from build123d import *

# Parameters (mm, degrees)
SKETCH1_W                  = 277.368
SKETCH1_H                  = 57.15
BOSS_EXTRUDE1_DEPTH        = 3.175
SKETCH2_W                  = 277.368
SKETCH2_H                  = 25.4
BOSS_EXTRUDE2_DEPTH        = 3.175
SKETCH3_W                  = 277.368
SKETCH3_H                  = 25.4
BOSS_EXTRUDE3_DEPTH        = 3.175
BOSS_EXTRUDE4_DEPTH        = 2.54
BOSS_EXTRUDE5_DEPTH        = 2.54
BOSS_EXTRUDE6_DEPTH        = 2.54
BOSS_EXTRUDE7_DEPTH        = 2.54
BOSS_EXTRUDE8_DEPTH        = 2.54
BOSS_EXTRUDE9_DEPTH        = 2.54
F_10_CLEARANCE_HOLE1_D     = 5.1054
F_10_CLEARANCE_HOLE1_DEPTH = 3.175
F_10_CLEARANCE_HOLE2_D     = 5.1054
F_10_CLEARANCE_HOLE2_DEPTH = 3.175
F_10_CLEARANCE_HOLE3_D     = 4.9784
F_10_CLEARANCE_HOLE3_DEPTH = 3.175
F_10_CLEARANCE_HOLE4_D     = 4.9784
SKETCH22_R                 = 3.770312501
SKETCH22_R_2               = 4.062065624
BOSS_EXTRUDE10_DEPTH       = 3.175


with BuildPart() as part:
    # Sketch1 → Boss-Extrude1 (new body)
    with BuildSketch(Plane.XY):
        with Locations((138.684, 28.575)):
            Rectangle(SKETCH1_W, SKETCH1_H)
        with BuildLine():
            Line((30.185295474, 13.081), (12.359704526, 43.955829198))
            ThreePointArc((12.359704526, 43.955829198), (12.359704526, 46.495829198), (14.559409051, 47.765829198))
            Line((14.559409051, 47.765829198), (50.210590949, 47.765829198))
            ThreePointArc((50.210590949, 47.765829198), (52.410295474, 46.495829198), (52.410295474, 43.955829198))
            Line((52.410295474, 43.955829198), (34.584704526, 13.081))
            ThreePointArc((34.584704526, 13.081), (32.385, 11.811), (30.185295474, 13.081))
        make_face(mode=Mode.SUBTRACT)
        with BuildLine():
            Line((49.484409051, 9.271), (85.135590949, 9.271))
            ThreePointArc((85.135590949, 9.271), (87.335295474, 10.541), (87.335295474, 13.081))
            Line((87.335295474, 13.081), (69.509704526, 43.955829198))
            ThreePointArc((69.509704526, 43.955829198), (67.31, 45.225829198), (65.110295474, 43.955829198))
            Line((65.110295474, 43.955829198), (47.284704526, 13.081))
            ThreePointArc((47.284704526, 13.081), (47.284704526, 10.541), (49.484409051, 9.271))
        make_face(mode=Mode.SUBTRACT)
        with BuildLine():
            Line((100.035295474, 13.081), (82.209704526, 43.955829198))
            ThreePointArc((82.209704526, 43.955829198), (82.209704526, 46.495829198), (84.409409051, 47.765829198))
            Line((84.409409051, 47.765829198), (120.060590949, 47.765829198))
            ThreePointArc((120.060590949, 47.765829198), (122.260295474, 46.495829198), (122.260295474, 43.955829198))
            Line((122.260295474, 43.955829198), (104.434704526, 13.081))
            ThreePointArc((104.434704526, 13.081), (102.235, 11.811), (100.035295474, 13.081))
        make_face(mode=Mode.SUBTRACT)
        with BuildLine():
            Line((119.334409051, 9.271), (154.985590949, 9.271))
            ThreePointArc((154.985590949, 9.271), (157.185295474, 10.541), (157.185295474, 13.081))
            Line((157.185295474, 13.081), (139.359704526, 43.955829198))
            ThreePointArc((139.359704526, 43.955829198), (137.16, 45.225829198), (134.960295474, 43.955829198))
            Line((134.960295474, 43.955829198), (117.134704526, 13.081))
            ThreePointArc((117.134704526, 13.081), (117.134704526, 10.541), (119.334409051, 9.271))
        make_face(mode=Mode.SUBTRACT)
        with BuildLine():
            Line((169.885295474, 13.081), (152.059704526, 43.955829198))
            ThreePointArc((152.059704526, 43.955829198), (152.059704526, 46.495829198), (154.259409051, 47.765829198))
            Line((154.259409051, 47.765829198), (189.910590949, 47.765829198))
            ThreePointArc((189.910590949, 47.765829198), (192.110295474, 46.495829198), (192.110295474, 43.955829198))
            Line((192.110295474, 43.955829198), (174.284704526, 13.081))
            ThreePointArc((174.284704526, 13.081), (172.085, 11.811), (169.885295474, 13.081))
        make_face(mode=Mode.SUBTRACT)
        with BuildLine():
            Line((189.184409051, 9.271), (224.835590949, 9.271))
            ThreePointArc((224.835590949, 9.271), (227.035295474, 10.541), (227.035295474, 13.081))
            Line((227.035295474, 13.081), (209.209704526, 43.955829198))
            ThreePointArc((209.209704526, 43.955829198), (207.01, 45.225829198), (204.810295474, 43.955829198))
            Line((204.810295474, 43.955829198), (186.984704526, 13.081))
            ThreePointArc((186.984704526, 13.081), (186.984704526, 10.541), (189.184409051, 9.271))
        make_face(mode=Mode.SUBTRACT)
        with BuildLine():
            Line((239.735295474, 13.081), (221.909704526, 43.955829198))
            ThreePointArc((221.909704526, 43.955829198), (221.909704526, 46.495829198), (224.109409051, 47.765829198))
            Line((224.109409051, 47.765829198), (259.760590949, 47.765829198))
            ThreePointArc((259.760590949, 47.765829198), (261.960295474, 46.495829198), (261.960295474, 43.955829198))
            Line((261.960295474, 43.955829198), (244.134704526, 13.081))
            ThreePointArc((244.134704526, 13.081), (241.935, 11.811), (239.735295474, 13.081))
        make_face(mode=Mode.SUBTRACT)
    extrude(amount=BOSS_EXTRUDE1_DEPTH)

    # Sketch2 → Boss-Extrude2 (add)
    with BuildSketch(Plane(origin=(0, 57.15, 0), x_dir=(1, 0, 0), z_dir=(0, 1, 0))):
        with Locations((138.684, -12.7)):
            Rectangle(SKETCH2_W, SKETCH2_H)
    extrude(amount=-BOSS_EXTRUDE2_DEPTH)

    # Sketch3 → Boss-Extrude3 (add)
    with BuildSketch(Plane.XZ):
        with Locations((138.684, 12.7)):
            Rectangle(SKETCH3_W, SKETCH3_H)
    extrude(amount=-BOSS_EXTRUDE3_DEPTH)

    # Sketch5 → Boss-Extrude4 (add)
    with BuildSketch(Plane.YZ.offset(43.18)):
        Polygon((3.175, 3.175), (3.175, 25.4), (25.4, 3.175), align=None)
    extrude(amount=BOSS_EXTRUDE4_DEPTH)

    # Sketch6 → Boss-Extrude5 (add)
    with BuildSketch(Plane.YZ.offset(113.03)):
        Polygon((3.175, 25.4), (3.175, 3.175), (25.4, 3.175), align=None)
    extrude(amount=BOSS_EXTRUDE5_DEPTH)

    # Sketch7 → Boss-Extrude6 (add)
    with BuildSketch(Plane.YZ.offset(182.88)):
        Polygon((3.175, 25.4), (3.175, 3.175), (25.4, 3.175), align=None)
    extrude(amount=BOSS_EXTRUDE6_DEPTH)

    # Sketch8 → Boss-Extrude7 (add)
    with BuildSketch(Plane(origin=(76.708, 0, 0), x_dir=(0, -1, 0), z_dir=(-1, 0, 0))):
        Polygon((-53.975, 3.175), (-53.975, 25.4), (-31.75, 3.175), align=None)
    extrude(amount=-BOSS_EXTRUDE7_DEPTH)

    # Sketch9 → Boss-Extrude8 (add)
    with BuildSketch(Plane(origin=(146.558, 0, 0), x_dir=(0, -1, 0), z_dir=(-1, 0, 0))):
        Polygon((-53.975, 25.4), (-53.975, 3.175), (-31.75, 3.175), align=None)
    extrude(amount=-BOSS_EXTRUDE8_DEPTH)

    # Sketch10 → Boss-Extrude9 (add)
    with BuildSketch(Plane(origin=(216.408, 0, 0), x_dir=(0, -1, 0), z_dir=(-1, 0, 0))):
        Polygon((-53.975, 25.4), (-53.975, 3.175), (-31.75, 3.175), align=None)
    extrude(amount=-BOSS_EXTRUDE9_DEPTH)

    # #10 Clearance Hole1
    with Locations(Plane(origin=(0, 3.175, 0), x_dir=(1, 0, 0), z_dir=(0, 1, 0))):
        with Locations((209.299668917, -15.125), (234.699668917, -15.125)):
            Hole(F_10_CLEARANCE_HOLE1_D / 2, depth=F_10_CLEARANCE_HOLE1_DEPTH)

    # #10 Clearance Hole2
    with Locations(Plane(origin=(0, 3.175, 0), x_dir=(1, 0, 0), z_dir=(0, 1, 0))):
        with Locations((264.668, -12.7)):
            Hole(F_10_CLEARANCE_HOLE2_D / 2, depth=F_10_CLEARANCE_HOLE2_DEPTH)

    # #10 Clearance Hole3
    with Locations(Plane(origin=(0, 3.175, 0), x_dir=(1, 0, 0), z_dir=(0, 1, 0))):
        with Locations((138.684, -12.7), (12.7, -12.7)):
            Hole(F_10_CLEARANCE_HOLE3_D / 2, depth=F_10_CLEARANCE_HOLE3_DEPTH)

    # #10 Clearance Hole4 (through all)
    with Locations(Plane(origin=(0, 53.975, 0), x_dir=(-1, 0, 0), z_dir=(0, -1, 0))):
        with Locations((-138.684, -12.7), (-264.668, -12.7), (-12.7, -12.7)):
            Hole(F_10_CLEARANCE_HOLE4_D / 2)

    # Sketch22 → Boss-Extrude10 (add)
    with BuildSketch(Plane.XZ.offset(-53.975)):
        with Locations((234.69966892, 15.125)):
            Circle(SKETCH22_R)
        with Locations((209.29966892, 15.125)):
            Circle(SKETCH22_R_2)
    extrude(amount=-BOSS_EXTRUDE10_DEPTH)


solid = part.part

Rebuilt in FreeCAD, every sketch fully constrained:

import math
import FreeCAD as App
import Part
import Sketcher

V = App.Vector
Q = App.Units.Quantity

doc = App.newDocument("Part")
params = doc.addObject("Spreadsheet::Sheet", "Params")
for row, (alias, value) in enumerate([
    ("sketch1_radius", "0.1 in"),
    ("sketch1_width", "10.92 in"),
    ("sketch1_height", "2.25 in"),
    ("pad1_length", "0.125 in"),
    ("sketch2_height", "1 in"),
    ("sketch2_width", "10.92 in"),
    ("pad2_length", "0.125 in"),
    ("sketch3_height", "1 in"),
    ("sketch3_width", "10.92 in"),
    ("pad3_length", "0.125 in"),
    ("sketch4_width", "0.875 in"),
    ("pad4_length", "0.1 in"),
    ("sketch5_width", "0.875 in"),
    ("pad5_length", "0.1 in"),
    ("sketch6_width", "0.875 in"),
    ("pad6_length", "0.1 in"),
    ("sketch7_width", "0.875 in"),
    ("pad7_length", "0.1 in"),
    ("sketch8_width", "0.875 in"),
    ("pad8_length", "0.1 in"),
    ("sketch9_width", "0.875 in"),
    ("pad9_length", "0.1 in"),
    ("sketch10_diameter", "0.201 in"),
    ("hole_diameter", "0.201 in"),
    ("hole_depth", "0.125 in"),
    ("sketch11_diameter", "0.201 in"),
    ("hole2_diameter", "0.201 in"),
    ("hole2_depth", "0.125 in"),
    ("sketch12_diameter", "0.196 in"),
    ("hole3_diameter", "0.196 in"),
    ("hole3_depth", "0.125 in"),
    ("sketch13_diameter", "0.196 in"),
    ("hole4_diameter", "0.196 in"),
    ("sketch14_diameter", "0.296875 in"),
    ("pad10_length", "0.125 in"),
], start=1):
    params.set(f"A{row}", alias)
    params.set(f"B{row}", "=" + value)
    params.setAlias(f"B{row}", alias)

body = doc.addObject("PartDesign::Body", "Body")

# Sketch on XY plane
sketch1 = body.newObject("Sketcher::SketchObject", "Sketch")
sketch1.AttachmentSupport = (doc.getObject("XY_Plane"), [""])
sketch1.MapMode = "FlatFace"
sketch1.addGeometry([
    Part.LineSegment(V(0, 57.15, 0), V(0, 0, 0)),  # 0
    Part.LineSegment(V(0, 0, 0), V(277.368, 0, 0)),  # 1
    Part.LineSegment(V(277.368, 0, 0), V(277.368, 57.15, 0)),  # 2
    Part.LineSegment(V(277.368, 57.15, 0), V(0, 57.15, 0)),  # 3
    Part.LineSegment(V(85.135591, 9.271, 0), V(49.484409, 9.271, 0)),  # 4
    Part.ArcOfCircle(Part.Circle(V(49.484409, 11.811, 0), V(0, 0, 1), 2.54), math.radians(150), math.radians(270)),  # 5
    Part.LineSegment(V(47.284705, 13.081, 0), V(65.110295, 43.955829, 0)),  # 6
    Part.ArcOfCircle(Part.Circle(V(67.31, 42.685829, 0), V(0, 0, 1), 2.54), math.radians(30), math.radians(150)),  # 7
    Part.LineSegment(V(69.509705, 43.955829, 0), V(87.335295, 13.081, 0)),  # 8
    Part.ArcOfCircle(Part.Circle(V(85.135591, 11.811, 0), V(0, 0, 1), 2.54), math.radians(-90), math.radians(30)),  # 9
    Part.LineSegment(V(154.985591, 9.271, 0), V(119.334409, 9.271, 0)),  # 10
    Part.ArcOfCircle(Part.Circle(V(119.334409, 11.811, 0), V(0, 0, 1), 2.54), math.radians(150), math.radians(270)),  # 11
    Part.LineSegment(V(117.134705, 13.081, 0), V(134.960295, 43.955829, 0)),  # 12
    Part.ArcOfCircle(Part.Circle(V(137.16, 42.685829, 0), V(0, 0, 1), 2.54), math.radians(30), math.radians(150)),  # 13
    Part.LineSegment(V(139.359705, 43.955829, 0), V(157.185295, 13.081, 0)),  # 14
    Part.ArcOfCircle(Part.Circle(V(154.985591, 11.811, 0), V(0, 0, 1), 2.54), math.radians(-90), math.radians(30)),  # 15
    Part.LineSegment(V(224.835591, 9.271, 0), V(189.184409, 9.271, 0)),  # 16
    Part.ArcOfCircle(Part.Circle(V(189.184409, 11.811, 0), V(0, 0, 1), 2.54), math.radians(150), math.radians(270)),  # 17
    Part.LineSegment(V(186.984705, 13.081, 0), V(204.810295, 43.955829, 0)),  # 18
    Part.ArcOfCircle(Part.Circle(V(207.01, 42.685829, 0), V(0, 0, 1), 2.54), math.radians(30), math.radians(150)),  # 19
    Part.LineSegment(V(209.209705, 43.955829, 0), V(227.035295, 13.081, 0)),  # 20
    Part.ArcOfCircle(Part.Circle(V(224.835591, 11.811, 0), V(0, 0, 1), 2.54), math.radians(-90), math.radians(30)),  # 21
    Part.ArcOfCircle(Part.Circle(V(32.385, 14.351, 0), V(0, 0, 1), 2.54), math.radians(-150), math.radians(-30)),  # 22
    Part.LineSegment(V(30.185295, 13.081, 0), V(12.359705, 43.955829, 0)),  # 23
    Part.ArcOfCircle(Part.Circle(V(14.559409, 45.225829, 0), V(0, 0, 1), 2.54), math.radians(90), math.radians(210)),  # 24
    Part.LineSegment(V(14.559409, 47.765829, 0), V(50.210591, 47.765829, 0)),  # 25
    Part.ArcOfCircle(Part.Circle(V(50.210591, 45.225829, 0), V(0, 0, 1), 2.54), math.radians(-30), math.radians(90)),  # 26
    Part.LineSegment(V(52.410295, 43.955829, 0), V(34.584705, 13.081, 0)),  # 27
    Part.ArcOfCircle(Part.Circle(V(102.235, 14.351, 0), V(0, 0, 1), 2.54), math.radians(-150), math.radians(-30)),  # 28
    Part.LineSegment(V(100.035295, 13.081, 0), V(82.209705, 43.955829, 0)),  # 29
    Part.ArcOfCircle(Part.Circle(V(84.409409, 45.225829, 0), V(0, 0, 1), 2.54), math.radians(90), math.radians(210)),  # 30
    Part.LineSegment(V(84.409409, 47.765829, 0), V(120.060591, 47.765829, 0)),  # 31
    Part.ArcOfCircle(Part.Circle(V(120.060591, 45.225829, 0), V(0, 0, 1), 2.54), math.radians(-30), math.radians(90)),  # 32
    Part.LineSegment(V(122.260295, 43.955829, 0), V(104.434705, 13.081, 0)),  # 33
    Part.ArcOfCircle(Part.Circle(V(172.085, 14.351, 0), V(0, 0, 1), 2.54), math.radians(-150), math.radians(-30)),  # 34
    Part.LineSegment(V(169.885295, 13.081, 0), V(152.059705, 43.955829, 0)),  # 35
    Part.ArcOfCircle(Part.Circle(V(154.259409, 45.225829, 0), V(0, 0, 1), 2.54), math.radians(90), math.radians(210)),  # 36
    Part.LineSegment(V(154.259409, 47.765829, 0), V(189.910591, 47.765829, 0)),  # 37
    Part.ArcOfCircle(Part.Circle(V(189.910591, 45.225829, 0), V(0, 0, 1), 2.54), math.radians(-30), math.radians(90)),  # 38
    Part.LineSegment(V(192.110295, 43.955829, 0), V(174.284705, 13.081, 0)),  # 39
    Part.ArcOfCircle(Part.Circle(V(241.935, 14.351, 0), V(0, 0, 1), 2.54), math.radians(-150), math.radians(-30)),  # 40
    Part.LineSegment(V(239.735295, 13.081, 0), V(221.909705, 43.955829, 0)),  # 41
    Part.ArcOfCircle(Part.Circle(V(224.109409, 45.225829, 0), V(0, 0, 1), 2.54), math.radians(90), math.radians(210)),  # 42
    Part.LineSegment(V(224.109409, 47.765829, 0), V(259.760591, 47.765829, 0)),  # 43
    Part.ArcOfCircle(Part.Circle(V(259.760591, 45.225829, 0), V(0, 0, 1), 2.54), math.radians(-30), math.radians(90)),  # 44
    Part.LineSegment(V(261.960295, 43.955829, 0), V(244.134705, 13.081, 0)),  # 45
], False)
sketch1.addConstraint([
    Sketcher.Constraint("Coincident", 0, 2, 1, 1),
    Sketcher.Constraint("Coincident", 1, 2, 2, 1),
    Sketcher.Constraint("Coincident", 2, 2, 3, 1),
    Sketcher.Constraint("Coincident", 3, 2, 0, 1),
    Sketcher.Constraint("Tangent", 4, 2, 5, 2),
    Sketcher.Constraint("Tangent", 5, 1, 6, 1),
    Sketcher.Constraint("Tangent", 6, 2, 7, 2),
    Sketcher.Constraint("Tangent", 7, 1, 8, 1),
    Sketcher.Constraint("Tangent", 8, 2, 9, 2),
    Sketcher.Constraint("Tangent", 9, 1, 4, 1),
    Sketcher.Constraint("Tangent", 10, 2, 11, 2),
    Sketcher.Constraint("Tangent", 11, 1, 12, 1),
    Sketcher.Constraint("Tangent", 12, 2, 13, 2),
    Sketcher.Constraint("Tangent", 13, 1, 14, 1),
    Sketcher.Constraint("Tangent", 14, 2, 15, 2),
    Sketcher.Constraint("Tangent", 15, 1, 10, 1),
    Sketcher.Constraint("Tangent", 16, 2, 17, 2),
    Sketcher.Constraint("Tangent", 17, 1, 18, 1),
    Sketcher.Constraint("Tangent", 18, 2, 19, 2),
    Sketcher.Constraint("Tangent", 19, 1, 20, 1),
    Sketcher.Constraint("Tangent", 20, 2, 21, 2),
    Sketcher.Constraint("Tangent", 21, 1, 16, 1),
    Sketcher.Constraint("Tangent", 22, 1, 23, 1),
    Sketcher.Constraint("Tangent", 23, 2, 24, 2),
    Sketcher.Constraint("Tangent", 24, 1, 25, 1),
    Sketcher.Constraint("Tangent", 25, 2, 26, 2),
    Sketcher.Constraint("Tangent", 26, 1, 27, 1),
    Sketcher.Constraint("Tangent", 27, 2, 22, 2),
    Sketcher.Constraint("Tangent", 28, 1, 29, 1),
    Sketcher.Constraint("Tangent", 29, 2, 30, 2),
    Sketcher.Constraint("Tangent", 30, 1, 31, 1),
    Sketcher.Constraint("Tangent", 31, 2, 32, 2),
    Sketcher.Constraint("Tangent", 32, 1, 33, 1),
    Sketcher.Constraint("Tangent", 33, 2, 28, 2),
    Sketcher.Constraint("Tangent", 34, 1, 35, 1),
    Sketcher.Constraint("Tangent", 35, 2, 36, 2),
    Sketcher.Constraint("Tangent", 36, 1, 37, 1),
    Sketcher.Constraint("Tangent", 37, 2, 38, 2),
    Sketcher.Constraint("Tangent", 38, 1, 39, 1),
    Sketcher.Constraint("Tangent", 39, 2, 34, 2),
    Sketcher.Constraint("Tangent", 40, 1, 41, 1),
    Sketcher.Constraint("Tangent", 41, 2, 42, 2),
    Sketcher.Constraint("Tangent", 42, 1, 43, 1),
    Sketcher.Constraint("Tangent", 43, 2, 44, 2),
    Sketcher.Constraint("Tangent", 44, 1, 45, 1),
    Sketcher.Constraint("Tangent", 45, 2, 40, 2),
    Sketcher.Constraint("Vertical", 0),
    Sketcher.Constraint("Horizontal", 1),
    Sketcher.Constraint("Vertical", 2),
    Sketcher.Constraint("Horizontal", 3),
    Sketcher.Constraint("Horizontal", 4),
    Sketcher.Constraint("Horizontal", 10),
    Sketcher.Constraint("Horizontal", 16),
    Sketcher.Constraint("Horizontal", 25),
    Sketcher.Constraint("Horizontal", 31),
    Sketcher.Constraint("Horizontal", 37),
    Sketcher.Constraint("Horizontal", 43),
    Sketcher.Constraint("Coincident", 0, 2, -1, 1),
    Sketcher.Constraint("Equal", 5, 7),
    Sketcher.Constraint("Equal", 7, 9),
    Sketcher.Constraint("Equal", 9, 11),
    Sketcher.Constraint("Equal", 11, 13),
    Sketcher.Constraint("Equal", 13, 15),
    Sketcher.Constraint("Equal", 15, 17),
    Sketcher.Constraint("Equal", 17, 19),
    Sketcher.Constraint("Equal", 19, 21),
    Sketcher.Constraint("Equal", 21, 22),
    Sketcher.Constraint("Equal", 22, 24),
    Sketcher.Constraint("Equal", 24, 26),
    Sketcher.Constraint("Equal", 26, 28),
    Sketcher.Constraint("Equal", 28, 30),
    Sketcher.Constraint("Equal", 30, 32),
    Sketcher.Constraint("Equal", 32, 34),
    Sketcher.Constraint("Equal", 34, 36),
    Sketcher.Constraint("Equal", 36, 38),
    Sketcher.Constraint("Equal", 38, 40),
    Sketcher.Constraint("Equal", 40, 42),
    Sketcher.Constraint("Equal", 42, 44),
    Sketcher.Constraint("Parallel", 6, 12),
    Sketcher.Constraint("Parallel", 8, 14),
    Sketcher.Constraint("Parallel", 12, 18),
    Sketcher.Constraint("Parallel", 14, 20),
    Sketcher.Constraint("Parallel", 20, 23),
    Sketcher.Constraint("Parallel", 18, 27),
    Sketcher.Constraint("Parallel", 23, 29),
    Sketcher.Constraint("Parallel", 27, 33),
    Sketcher.Constraint("Parallel", 29, 35),
    Sketcher.Constraint("Parallel", 33, 39),
    Sketcher.Constraint("Parallel", 35, 41),
    Sketcher.Constraint("Parallel", 39, 45),
    Sketcher.Constraint("Horizontal", 9, 3, 11, 3),
    Sketcher.Constraint("Horizontal", 7, 3, 13, 3),
    Sketcher.Constraint("Horizontal", 15, 3, 17, 3),
    Sketcher.Constraint("Horizontal", 13, 3, 19, 3),
    Sketcher.Constraint("Horizontal", 22, 3, 28, 3),
    Sketcher.Constraint("Horizontal", 26, 3, 30, 3),
    Sketcher.Constraint("Horizontal", 28, 3, 34, 3),
    Sketcher.Constraint("Horizontal", 32, 3, 36, 3),
    Sketcher.Constraint("Horizontal", 34, 3, 40, 3),
    Sketcher.Constraint("Horizontal", 38, 3, 42, 3),
    Sketcher.Constraint("Horizontal", 6, 2, 7, 1),
    Sketcher.Constraint("Horizontal", 20, 2, 22, 1),
    Sketcher.Constraint("Horizontal", 19, 1, 23, 2),
    Sketcher.Constraint("Radius", 5, Q("0.1 in")),
    Sketcher.Constraint("Angle", 6, Q("60 deg")),
    Sketcher.Constraint("DistanceX", 1, 1, 1, 2, Q("10.92 in")),
    Sketcher.Constraint("DistanceY", 0, 2, 0, 1, Q("2.25 in")),
    Sketcher.Constraint("DistanceX", -1, 1, 13, 3, Q("5.4 in")),
    Sketcher.Constraint("DistanceX", -1, 1, 7, 3, Q("2.65 in")),
    Sketcher.Constraint("DistanceX", -1, 1, 19, 3, Q("8.15 in")),
    Sketcher.Constraint("DistanceY", -1, 1, 5, 3, Q("0.465 in")),
    Sketcher.Constraint("DistanceX", -1, 1, 22, 3, Q("1.275 in")),
    Sketcher.Constraint("DistanceX", -1, 1, 28, 3, Q("4.025 in")),
    Sketcher.Constraint("DistanceX", -1, 1, 34, 3, Q("6.775 in")),
    Sketcher.Constraint("DistanceX", -1, 1, 40, 3, Q("9.525 in")),
    Sketcher.Constraint("DistanceX", 4, 2, 4, 1, Q("35.651182 mm")),
])
sketch1.setExpression("Constraints[103]", "Params.sketch1_radius")
sketch1.setExpression("Constraints[105]", "Params.sketch1_width")
sketch1.setExpression("Constraints[106]", "Params.sketch1_height")
pad1 = body.newObject("PartDesign::Pad", "Pad")
pad1.Profile = sketch1
pad1.setExpression("Length", "Params.pad1_length")

# Sketch on XZ plane
sketch2 = body.newObject("Sketcher::SketchObject", "Sketch001")
sketch2.AttachmentSupport = (doc.getObject("XZ_Plane"), [""])
sketch2.MapMode = "FlatFace"
sketch2.AttachmentOffset = App.Placement(V(0, 0, -2.25 * 25.4), App.Rotation())
sketch2.addGeometry([
    Part.LineSegment(V(0, 0, 0), V(0, 25.4, 0)),
    Part.LineSegment(V(0, 25.4, 0), V(277.368, 25.4, 0)),
    Part.LineSegment(V(277.368, 25.4, 0), V(277.368, 0, 0)),
    Part.LineSegment(V(277.368, 0, 0), V(0, 0, 0)),
], False)
sketch2.addConstraint([
    Sketcher.Constraint("Coincident", 0, 2, 1, 1),
    Sketcher.Constraint("Coincident", 1, 2, 2, 1),
    Sketcher.Constraint("Coincident", 2, 2, 3, 1),
    Sketcher.Constraint("Coincident", 3, 2, 0, 1),
    Sketcher.Constraint("Vertical", 0),
    Sketcher.Constraint("Horizontal", 1),
    Sketcher.Constraint("Vertical", 2),
    Sketcher.Constraint("Horizontal", 3),
    Sketcher.Constraint("Coincident", 3, 2, -1, 1),
    Sketcher.Constraint("DistanceY", 0, 1, 0, 2, Q("1 in")),
    Sketcher.Constraint("DistanceX", 1, 1, 1, 2, Q("10.92 in")),
])
sketch2.setExpression("Constraints[9]", "Params.sketch2_height")
sketch2.setExpression("Constraints[10]", "Params.sketch2_width")
pad2 = body.newObject("PartDesign::Pad", "Pad001")
pad2.Profile = sketch2
pad2.setExpression("Length", "Params.pad2_length")

# Sketch on XZ plane
sketch3 = body.newObject("Sketcher::SketchObject", "Sketch002")
sketch3.AttachmentSupport = (doc.getObject("XZ_Plane"), [""])
sketch3.MapMode = "FlatFace"
sketch3.addGeometry([
    Part.LineSegment(V(0, 25.4, 0), V(0, 0, 0)),
    Part.LineSegment(V(0, 0, 0), V(277.368, 0, 0)),
    Part.LineSegment(V(277.368, 0, 0), V(277.368, 25.4, 0)),
    Part.LineSegment(V(277.368, 25.4, 0), V(0, 25.4, 0)),
], False)
sketch3.addConstraint([
    Sketcher.Constraint("Coincident", 0, 2, 1, 1),
    Sketcher.Constraint("Coincident", 1, 2, 2, 1),
    Sketcher.Constraint("Coincident", 2, 2, 3, 1),
    Sketcher.Constraint("Coincident", 3, 2, 0, 1),
    Sketcher.Constraint("Vertical", 0),
    Sketcher.Constraint("Horizontal", 1),
    Sketcher.Constraint("Vertical", 2),
    Sketcher.Constraint("Horizontal", 3),
    Sketcher.Constraint("Coincident", 0, 2, -1, 1),
    Sketcher.Constraint("DistanceY", 0, 2, 0, 1, Q("1 in")),
    Sketcher.Constraint("DistanceX", 1, 1, 1, 2, Q("10.92 in")),
])
sketch3.setExpression("Constraints[9]", "Params.sketch3_height")
sketch3.setExpression("Constraints[10]", "Params.sketch3_width")
pad3 = body.newObject("PartDesign::Pad", "Pad002")
pad3.Profile = sketch3
pad3.setExpression("Length", "Params.pad3_length")
pad3.Reversed = True

# Sketch on YZ plane
sketch4 = body.newObject("Sketcher::SketchObject", "Sketch003")
sketch4.AttachmentSupport = (doc.getObject("YZ_Plane"), [""])
sketch4.MapMode = "FlatFace"
sketch4.AttachmentOffset = App.Placement(V(0, 0, 1.7 * 25.4), App.Rotation())
sketch4.addGeometry([
    Part.LineSegment(V(3.175, 25.4, 0), V(3.175, 3.175, 0)),
    Part.LineSegment(V(3.175, 3.175, 0), V(25.4, 3.175, 0)),
    Part.LineSegment(V(25.4, 3.175, 0), V(3.175, 25.4, 0)),
], False)
sketch4.addConstraint([
    Sketcher.Constraint("Coincident", 0, 2, 1, 1),
    Sketcher.Constraint("Coincident", 1, 2, 2, 1),
    Sketcher.Constraint("Coincident", 2, 2, 0, 1),
    Sketcher.Constraint("Vertical", 0),
    Sketcher.Constraint("Horizontal", 1),
    Sketcher.Constraint("Equal", 1, 0),
    Sketcher.Constraint("DistanceX", -1, 1, 1, 2, Q("1 in")),
    Sketcher.Constraint("DistanceY", -1, 1, 2, 2, Q("1 in")),
    Sketcher.Constraint("DistanceX", 1, 1, 1, 2, Q("0.875 in")),
])
sketch4.setExpression("Constraints[8]", "Params.sketch4_width")
pad4 = body.newObject("PartDesign::Pad", "Pad003")
pad4.Profile = sketch4
pad4.setExpression("Length", "Params.pad4_length")

# Sketch on YZ plane
sketch5 = body.newObject("Sketcher::SketchObject", "Sketch004")
sketch5.AttachmentSupport = (doc.getObject("YZ_Plane"), [""])
sketch5.MapMode = "FlatFace"
sketch5.AttachmentOffset = App.Placement(V(0, 0, 4.45 * 25.4), App.Rotation())
sketch5.addGeometry([
    Part.LineSegment(V(3.175, 25.4, 0), V(3.175, 3.175, 0)),
    Part.LineSegment(V(3.175, 3.175, 0), V(25.4, 3.175, 0)),
    Part.LineSegment(V(25.4, 3.175, 0), V(3.175, 25.4, 0)),
], False)
sketch5.addConstraint([
    Sketcher.Constraint("Coincident", 0, 2, 1, 1),
    Sketcher.Constraint("Coincident", 1, 2, 2, 1),
    Sketcher.Constraint("Coincident", 2, 2, 0, 1),
    Sketcher.Constraint("Vertical", 0),
    Sketcher.Constraint("Horizontal", 1),
    Sketcher.Constraint("Equal", 1, 0),
    Sketcher.Constraint("DistanceX", -1, 1, 1, 2, Q("1 in")),
    Sketcher.Constraint("DistanceY", -1, 1, 2, 2, Q("1 in")),
    Sketcher.Constraint("DistanceX", 1, 1, 1, 2, Q("0.875 in")),
])
sketch5.setExpression("Constraints[8]", "Params.sketch5_width")
pad5 = body.newObject("PartDesign::Pad", "Pad004")
pad5.Profile = sketch5
pad5.setExpression("Length", "Params.pad5_length")

# Sketch on YZ plane
sketch6 = body.newObject("Sketcher::SketchObject", "Sketch005")
sketch6.AttachmentSupport = (doc.getObject("YZ_Plane"), [""])
sketch6.MapMode = "FlatFace"
sketch6.AttachmentOffset = App.Placement(V(0, 0, 7.2 * 25.4), App.Rotation())
sketch6.addGeometry([
    Part.LineSegment(V(3.175, 25.4, 0), V(3.175, 3.175, 0)),
    Part.LineSegment(V(3.175, 3.175, 0), V(25.4, 3.175, 0)),
    Part.LineSegment(V(25.4, 3.175, 0), V(3.175, 25.4, 0)),
], False)
sketch6.addConstraint([
    Sketcher.Constraint("Coincident", 0, 2, 1, 1),
    Sketcher.Constraint("Coincident", 1, 2, 2, 1),
    Sketcher.Constraint("Coincident", 2, 2, 0, 1),
    Sketcher.Constraint("Vertical", 0),
    Sketcher.Constraint("Horizontal", 1),
    Sketcher.Constraint("Equal", 1, 0),
    Sketcher.Constraint("DistanceX", -1, 1, 1, 2, Q("1 in")),
    Sketcher.Constraint("DistanceY", -1, 1, 2, 2, Q("1 in")),
    Sketcher.Constraint("DistanceX", 1, 1, 1, 2, Q("0.875 in")),
])
sketch6.setExpression("Constraints[8]", "Params.sketch6_width")
pad6 = body.newObject("PartDesign::Pad", "Pad005")
pad6.Profile = sketch6
pad6.setExpression("Length", "Params.pad6_length")

# Sketch on YZ plane
sketch7 = body.newObject("Sketcher::SketchObject", "Sketch006")
sketch7.AttachmentSupport = (doc.getObject("YZ_Plane"), [""])
sketch7.MapMode = "FlatFace"
sketch7.AttachmentOffset = App.Placement(V(0, 0, 3.02 * 25.4), App.Rotation())
sketch7.addGeometry([
    Part.LineSegment(V(53.975, 25.4, 0), V(53.975, 3.175, 0)),
    Part.LineSegment(V(53.975, 3.175, 0), V(31.75, 3.175, 0)),
    Part.LineSegment(V(31.75, 3.175, 0), V(53.975, 25.4, 0)),
], False)
sketch7.addConstraint([
    Sketcher.Constraint("Coincident", 0, 2, 1, 1),
    Sketcher.Constraint("Coincident", 1, 2, 2, 1),
    Sketcher.Constraint("Coincident", 2, 2, 0, 1),
    Sketcher.Constraint("Vertical", 0),
    Sketcher.Constraint("Horizontal", 1),
    Sketcher.Constraint("Equal", 1, 0),
    Sketcher.Constraint("DistanceY", -1, 1, 2, 2, Q("1 in")),
    Sketcher.Constraint("DistanceX", 1, 2, 1, 1, Q("0.875 in")),
    Sketcher.Constraint("DistanceX", -1, 1, 1, 2, Q("1.25 in")),
])
sketch7.setExpression("Constraints[7]", "Params.sketch7_width")
pad7 = body.newObject("PartDesign::Pad", "Pad006")
pad7.Profile = sketch7
pad7.setExpression("Length", "Params.pad7_length")

# Sketch on YZ plane
sketch8 = body.newObject("Sketcher::SketchObject", "Sketch007")
sketch8.AttachmentSupport = (doc.getObject("YZ_Plane"), [""])
sketch8.MapMode = "FlatFace"
sketch8.AttachmentOffset = App.Placement(V(0, 0, 5.77 * 25.4), App.Rotation())
sketch8.addGeometry([
    Part.LineSegment(V(53.975, 25.4, 0), V(53.975, 3.175, 0)),
    Part.LineSegment(V(53.975, 3.175, 0), V(31.75, 3.175, 0)),
    Part.LineSegment(V(31.75, 3.175, 0), V(53.975, 25.4, 0)),
], False)
sketch8.addConstraint([
    Sketcher.Constraint("Coincident", 0, 2, 1, 1),
    Sketcher.Constraint("Coincident", 1, 2, 2, 1),
    Sketcher.Constraint("Coincident", 2, 2, 0, 1),
    Sketcher.Constraint("Vertical", 0),
    Sketcher.Constraint("Horizontal", 1),
    Sketcher.Constraint("Equal", 1, 0),
    Sketcher.Constraint("DistanceY", -1, 1, 2, 2, Q("1 in")),
    Sketcher.Constraint("DistanceX", 1, 2, 1, 1, Q("0.875 in")),
    Sketcher.Constraint("DistanceX", -1, 1, 1, 2, Q("1.25 in")),
])
sketch8.setExpression("Constraints[7]", "Params.sketch8_width")
pad8 = body.newObject("PartDesign::Pad", "Pad007")
pad8.Profile = sketch8
pad8.setExpression("Length", "Params.pad8_length")

# Sketch on YZ plane
sketch9 = body.newObject("Sketcher::SketchObject", "Sketch008")
sketch9.AttachmentSupport = (doc.getObject("YZ_Plane"), [""])
sketch9.MapMode = "FlatFace"
sketch9.AttachmentOffset = App.Placement(V(0, 0, 8.52 * 25.4), App.Rotation())
sketch9.addGeometry([
    Part.LineSegment(V(53.975, 25.4, 0), V(53.975, 3.175, 0)),
    Part.LineSegment(V(53.975, 3.175, 0), V(31.75, 3.175, 0)),
    Part.LineSegment(V(31.75, 3.175, 0), V(53.975, 25.4, 0)),
], False)
sketch9.addConstraint([
    Sketcher.Constraint("Coincident", 0, 2, 1, 1),
    Sketcher.Constraint("Coincident", 1, 2, 2, 1),
    Sketcher.Constraint("Coincident", 2, 2, 0, 1),
    Sketcher.Constraint("Vertical", 0),
    Sketcher.Constraint("Horizontal", 1),
    Sketcher.Constraint("Equal", 1, 0),
    Sketcher.Constraint("DistanceY", -1, 1, 2, 2, Q("1 in")),
    Sketcher.Constraint("DistanceX", 1, 2, 1, 1, Q("0.875 in")),
    Sketcher.Constraint("DistanceX", -1, 1, 1, 2, Q("1.25 in")),
])
sketch9.setExpression("Constraints[7]", "Params.sketch9_width")
pad9 = body.newObject("PartDesign::Pad", "Pad008")
pad9.Profile = sketch9
pad9.setExpression("Length", "Params.pad9_length")

# Sketch on XZ plane
sketch10 = body.newObject("Sketcher::SketchObject", "Sketch009")
sketch10.AttachmentSupport = (doc.getObject("XZ_Plane"), [""])
sketch10.MapMode = "FlatFace"
sketch10.AttachmentOffset = App.Placement(V(0, 0, -0.125 * 25.4), App.Rotation())
sketch10.addGeometry([
    Part.Circle(V(209.299669, 15.125, 0), V(0, 0, 1), 2.5527),
    Part.Circle(V(234.699669, 15.125, 0), V(0, 0, 1), 2.5527),
], False)
sketch10.addConstraint([
    Sketcher.Constraint("Equal", 0, 1),
    Sketcher.Constraint("Horizontal", 0, 3, 1, 3),
    Sketcher.Constraint("Diameter", 0, Q("0.201 in")),
    Sketcher.Constraint("DistanceX", 0, 3, 1, 3, Q("1 in")),
    Sketcher.Constraint("DistanceY", -1, 1, 0, 3, Q("15.125 mm")),
    Sketcher.Constraint("DistanceX", -1, 1, 0, 3, Q("209.299669 mm")),
])
sketch10.setExpression("Constraints[2]", "Params.sketch10_diameter")
doc.recompute()
hole = body.newObject("PartDesign::Hole", "Hole")
hole.Profile = sketch10
hole.ThreadType = "None"
hole.setExpression("Diameter", "Params.hole_diameter")
hole.DepthType = "Dimension"
hole.setExpression("Depth", "Params.hole_depth")
hole.DrillPoint = "Flat"
hole.Reversed = True

# Sketch on XZ plane
sketch11 = body.newObject("Sketcher::SketchObject", "Sketch010")
sketch11.AttachmentSupport = (doc.getObject("XZ_Plane"), [""])
sketch11.MapMode = "FlatFace"
sketch11.AttachmentOffset = App.Placement(V(0, 0, -0.125 * 25.4), App.Rotation())
sketch11.addGeometry(Part.Circle(V(264.668, 12.7, 0), V(0, 0, 1), 2.5527), False)
sketch11.addConstraint([
    Sketcher.Constraint("Diameter", 0, Q("0.201 in")),
    Sketcher.Constraint("DistanceY", -1, 1, 0, 3, Q("0.5 in")),
    Sketcher.Constraint("DistanceX", -1, 1, 0, 3, Q("10.42 in")),
])
sketch11.setExpression("Constraints[0]", "Params.sketch11_diameter")
doc.recompute()
hole2 = body.newObject("PartDesign::Hole", "Hole001")
hole2.Profile = sketch11
hole2.ThreadType = "None"
hole2.setExpression("Diameter", "Params.hole2_diameter")
hole2.DepthType = "Dimension"
hole2.setExpression("Depth", "Params.hole2_depth")
hole2.DrillPoint = "Flat"
hole2.Reversed = True

# Sketch on XZ plane
sketch12 = body.newObject("Sketcher::SketchObject", "Sketch011")
sketch12.AttachmentSupport = (doc.getObject("XZ_Plane"), [""])
sketch12.MapMode = "FlatFace"
sketch12.AttachmentOffset = App.Placement(V(0, 0, -0.125 * 25.4), App.Rotation())
sketch12.addGeometry([
    Part.Circle(V(138.684, 12.7, 0), V(0, 0, 1), 2.4892),
    Part.Circle(V(12.7, 12.7, 0), V(0, 0, 1), 2.4892),
], False)
sketch12.addConstraint([
    Sketcher.Constraint("Equal", 0, 1),
    Sketcher.Constraint("Horizontal", 0, 3, 1, 3),
    Sketcher.Constraint("Diameter", 0, Q("0.196 in")),
    Sketcher.Constraint("DistanceY", -1, 1, 0, 3, Q("0.5 in")),
    Sketcher.Constraint("DistanceX", -1, 1, 1, 3, Q("0.5 in")),
    Sketcher.Constraint("DistanceX", -1, 1, 0, 3, Q("5.46 in")),
])
sketch12.setExpression("Constraints[2]", "Params.sketch12_diameter")
doc.recompute()
hole3 = body.newObject("PartDesign::Hole", "Hole002")
hole3.Profile = sketch12
hole3.ThreadType = "None"
hole3.setExpression("Diameter", "Params.hole3_diameter")
hole3.DepthType = "Dimension"
hole3.setExpression("Depth", "Params.hole3_depth")
hole3.DrillPoint = "Flat"
hole3.Reversed = True

# Sketch on XZ plane
sketch13 = body.newObject("Sketcher::SketchObject", "Sketch012")
sketch13.AttachmentSupport = (doc.getObject("XZ_Plane"), [""])
sketch13.MapMode = "FlatFace"
sketch13.AttachmentOffset = App.Placement(V(0, 0, -2.125 * 25.4), App.Rotation())
sketch13.addGeometry([
    Part.Circle(V(138.684, 12.7, 0), V(0, 0, 1), 2.4892),
    Part.Circle(V(264.668, 12.7, 0), V(0, 0, 1), 2.4892),
    Part.Circle(V(12.7, 12.7, 0), V(0, 0, 1), 2.4892),
], False)
sketch13.addConstraint([
    Sketcher.Constraint("Equal", 0, 1),
    Sketcher.Constraint("Equal", 1, 2),
    Sketcher.Constraint("Horizontal", 0, 3, 1, 3),
    Sketcher.Constraint("Horizontal", 1, 3, 2, 3),
    Sketcher.Constraint("Diameter", 0, Q("0.196 in")),
    Sketcher.Constraint("DistanceY", -1, 1, 0, 3, Q("0.5 in")),
    Sketcher.Constraint("DistanceX", -1, 1, 2, 3, Q("0.5 in")),
    Sketcher.Constraint("DistanceX", -1, 1, 0, 3, Q("5.46 in")),
    Sketcher.Constraint("DistanceX", -1, 1, 1, 3, Q("10.42 in")),
])
sketch13.setExpression("Constraints[4]", "Params.sketch13_diameter")
doc.recompute()
hole4 = body.newObject("PartDesign::Hole", "Hole003")
hole4.Profile = sketch13
hole4.ThreadType = "None"
hole4.setExpression("Diameter", "Params.hole4_diameter")
hole4.DepthType = "ThroughAll"

# Sketch on XZ plane
sketch14 = body.newObject("Sketcher::SketchObject", "Sketch013")
sketch14.AttachmentSupport = (doc.getObject("XZ_Plane"), [""])
sketch14.MapMode = "FlatFace"
sketch14.AttachmentOffset = App.Placement(V(0, 0, -2.125 * 25.4), App.Rotation())
sketch14.addGeometry([
    Part.Circle(V(234.699669, 15.125, 0), V(0, 0, 1), 3.770313),
    Part.Circle(V(209.299669, 15.125, 0), V(0, 0, 1), 4.062066),
], False)
sketch14.addConstraint([
    Sketcher.Constraint("Horizontal", 0, 3, 1, 3),
    Sketcher.Constraint("Diameter", 0, Q("0.296875 in")),
    Sketcher.Constraint("DistanceX", 1, 3, 0, 3, Q("1 in")),
    Sketcher.Constraint("Diameter", 1, Q("8.124131 mm")),
    Sketcher.Constraint("DistanceY", -1, 1, 0, 3, Q("15.125 mm")),
    Sketcher.Constraint("DistanceX", -1, 1, 0, 3, Q("234.699669 mm")),
])
sketch14.setExpression("Constraints[1]", "Params.sketch14_diameter")
pad10 = body.newObject("PartDesign::Pad", "Pad009")
pad10.Profile = sketch14
pad10.setExpression("Length", "Params.pad10_length")
pad10.Reversed = True

doc.recompute()
